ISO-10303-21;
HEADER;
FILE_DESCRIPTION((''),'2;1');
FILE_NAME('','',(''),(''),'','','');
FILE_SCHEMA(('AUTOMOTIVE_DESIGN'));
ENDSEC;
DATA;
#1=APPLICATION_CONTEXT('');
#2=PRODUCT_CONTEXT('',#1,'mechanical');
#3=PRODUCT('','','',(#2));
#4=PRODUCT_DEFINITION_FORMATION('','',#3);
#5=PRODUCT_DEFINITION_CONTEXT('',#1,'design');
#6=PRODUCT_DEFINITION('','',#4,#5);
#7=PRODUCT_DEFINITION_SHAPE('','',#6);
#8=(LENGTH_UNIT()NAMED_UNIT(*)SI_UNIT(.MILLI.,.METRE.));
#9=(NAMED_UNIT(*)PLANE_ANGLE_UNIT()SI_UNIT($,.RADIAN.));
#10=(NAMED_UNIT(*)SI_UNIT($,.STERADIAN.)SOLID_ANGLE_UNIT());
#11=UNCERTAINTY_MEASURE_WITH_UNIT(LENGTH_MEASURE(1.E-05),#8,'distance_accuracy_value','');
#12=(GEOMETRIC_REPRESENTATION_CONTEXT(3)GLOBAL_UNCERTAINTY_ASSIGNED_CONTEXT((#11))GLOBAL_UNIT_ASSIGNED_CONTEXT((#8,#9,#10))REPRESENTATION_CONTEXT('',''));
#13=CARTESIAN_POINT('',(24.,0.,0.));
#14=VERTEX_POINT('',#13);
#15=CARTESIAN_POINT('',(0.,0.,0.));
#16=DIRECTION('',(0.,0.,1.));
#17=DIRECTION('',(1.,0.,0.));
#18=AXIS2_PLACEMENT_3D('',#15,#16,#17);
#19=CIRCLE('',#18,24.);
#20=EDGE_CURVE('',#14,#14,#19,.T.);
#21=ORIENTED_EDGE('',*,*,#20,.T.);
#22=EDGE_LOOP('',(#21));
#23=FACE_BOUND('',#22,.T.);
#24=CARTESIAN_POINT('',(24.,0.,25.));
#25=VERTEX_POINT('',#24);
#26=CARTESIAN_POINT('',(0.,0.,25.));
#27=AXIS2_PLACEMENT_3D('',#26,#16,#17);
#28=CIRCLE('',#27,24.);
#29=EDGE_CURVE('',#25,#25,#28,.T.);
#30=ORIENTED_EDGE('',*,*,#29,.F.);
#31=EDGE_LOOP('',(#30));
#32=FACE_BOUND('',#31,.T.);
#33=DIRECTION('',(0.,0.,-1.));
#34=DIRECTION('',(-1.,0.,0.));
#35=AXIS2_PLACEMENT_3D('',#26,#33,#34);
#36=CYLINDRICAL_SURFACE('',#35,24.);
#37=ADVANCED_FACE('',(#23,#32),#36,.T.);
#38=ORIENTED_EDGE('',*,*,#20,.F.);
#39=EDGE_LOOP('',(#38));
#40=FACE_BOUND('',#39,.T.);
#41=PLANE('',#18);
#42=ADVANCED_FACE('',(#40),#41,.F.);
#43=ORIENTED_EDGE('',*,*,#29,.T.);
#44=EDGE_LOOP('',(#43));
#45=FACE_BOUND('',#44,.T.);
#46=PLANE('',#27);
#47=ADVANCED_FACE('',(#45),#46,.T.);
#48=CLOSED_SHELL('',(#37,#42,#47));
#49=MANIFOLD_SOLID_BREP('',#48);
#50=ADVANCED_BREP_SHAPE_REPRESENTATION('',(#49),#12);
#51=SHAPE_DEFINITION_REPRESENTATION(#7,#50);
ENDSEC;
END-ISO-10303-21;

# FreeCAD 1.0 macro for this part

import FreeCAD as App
import Part
import Sketcher

doc = App.newDocument("Part")
body = doc.addObject("PartDesign::Body", "Body")

# Sketch on XY plane
sketch1 = body.newObject("Sketcher::SketchObject", "Sketch")
sketch1.AttachmentSupport = (doc.getObject("XY_Plane"), [""])
sketch1.MapMode = "FlatFace"
sketch1.addGeometry(Part.Circle(App.Vector(0, 0, 0), App.Vector(0, 0, 1), 24), False)
sketch1.addConstraint([
    Sketcher.Constraint("Coincident", 0, 3, -1, 1),
    Sketcher.Constraint("Diameter", 0, 48.0),
])
pad1 = body.newObject("PartDesign::Pad", "Pad")
pad1.Profile = sketch1
pad1.Length = 25

doc.recompute()
